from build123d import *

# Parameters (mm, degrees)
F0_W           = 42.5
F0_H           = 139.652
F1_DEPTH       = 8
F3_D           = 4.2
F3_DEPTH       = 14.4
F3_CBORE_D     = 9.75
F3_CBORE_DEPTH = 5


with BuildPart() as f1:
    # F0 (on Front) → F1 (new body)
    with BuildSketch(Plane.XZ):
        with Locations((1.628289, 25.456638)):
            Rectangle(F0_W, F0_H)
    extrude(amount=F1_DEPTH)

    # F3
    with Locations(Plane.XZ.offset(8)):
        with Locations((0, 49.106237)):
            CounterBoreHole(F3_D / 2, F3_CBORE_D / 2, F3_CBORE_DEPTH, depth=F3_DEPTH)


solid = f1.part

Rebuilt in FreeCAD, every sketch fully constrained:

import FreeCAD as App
import Part
import Sketcher
from FreeCAD import Vector
Q = App.Units.Quantity


def add_polygon(sketch, points):
    """Adds a closed chain of lines whose ends are joined by coincident constraints."""
    first, n = sketch.GeometryCount, len(points)
    for a, b in zip(points, points[1:] + points[:1]):
        sketch.addGeometry(Part.LineSegment(App.Vector(*a, 0), App.Vector(*b, 0)), False)
    for i in range(n):
        sketch.addConstraint(Sketcher.Constraint("Coincident", first + i, 2, first + (i + 1) % n, 1))

doc = App.newDocument("Part")
body = doc.addObject("PartDesign::Body", "Body")

sketch1 = body.newObject("Sketcher::SketchObject", "Sketch")
sketch1.AttachmentSupport = (doc.getObject("XZ_Plane"), [""])
sketch1.MapMode = "FlatFace"
add_polygon(sketch1, [(-20, 95), (-20, -44), (23, -44), (23, 95)])
sketch1.addConstraint([
    Sketcher.Constraint("Vertical", 0),
    Sketcher.Constraint("Horizontal", 1),
    Sketcher.Constraint("Vertical", 2),
    Sketcher.Constraint("Horizontal", 3),
    Sketcher.Constraint("DistanceX", 1, 1, 1, 2, Q("42.5 mm")),
    Sketcher.Constraint("DistanceY", 0, 2, 0, 1, Q("139.652 mm")),
    Sketcher.Constraint("DistanceX", 0, 2, -1, 1, Q("19.621711 mm")),
    Sketcher.Constraint("DistanceY", -1, 1, 2, 2, Q("95.282638 mm")),
])
pad1 = body.newObject("PartDesign::Pad", "Pad")
pad1.Profile = sketch1
pad1.Length = 8

sketch2 = body.newObject("Sketcher::SketchObject", "Sketch001")
sketch2.AttachmentSupport = (doc.getObject("XZ_Plane"), [""])
sketch2.MapMode = "FlatFace"
sketch2.AttachmentOffset = App.Placement(Vector(0, 0, 8), App.Rotation())
sketch2.addGeometry(Part.Circle(Vector(0, 49.1, 0), Vector(0, 0, 1), 2.1), False)
sketch2.addConstraint([
    Sketcher.Constraint("PointOnObject", 0, 3, -2),
    Sketcher.Constraint("Diameter", 0, Q("4.2 mm")),
    Sketcher.Constraint("DistanceY", -1, 1, 0, 3, Q("49.106237 mm")),
])
doc.recompute()
hole = body.newObject("PartDesign::Hole", "Hole")
hole.Profile = sketch2
hole.ThreadType = "None"
hole.Diameter = 4.2
hole.DepthType = "Dimension"
hole.Depth = 14.4
hole.DrillPoint = "Flat"
hole.HoleCutType = "Counterbore"
hole.HoleCutDiameter = 9.75
hole.HoleCutDepth = 5

doc.recompute()
